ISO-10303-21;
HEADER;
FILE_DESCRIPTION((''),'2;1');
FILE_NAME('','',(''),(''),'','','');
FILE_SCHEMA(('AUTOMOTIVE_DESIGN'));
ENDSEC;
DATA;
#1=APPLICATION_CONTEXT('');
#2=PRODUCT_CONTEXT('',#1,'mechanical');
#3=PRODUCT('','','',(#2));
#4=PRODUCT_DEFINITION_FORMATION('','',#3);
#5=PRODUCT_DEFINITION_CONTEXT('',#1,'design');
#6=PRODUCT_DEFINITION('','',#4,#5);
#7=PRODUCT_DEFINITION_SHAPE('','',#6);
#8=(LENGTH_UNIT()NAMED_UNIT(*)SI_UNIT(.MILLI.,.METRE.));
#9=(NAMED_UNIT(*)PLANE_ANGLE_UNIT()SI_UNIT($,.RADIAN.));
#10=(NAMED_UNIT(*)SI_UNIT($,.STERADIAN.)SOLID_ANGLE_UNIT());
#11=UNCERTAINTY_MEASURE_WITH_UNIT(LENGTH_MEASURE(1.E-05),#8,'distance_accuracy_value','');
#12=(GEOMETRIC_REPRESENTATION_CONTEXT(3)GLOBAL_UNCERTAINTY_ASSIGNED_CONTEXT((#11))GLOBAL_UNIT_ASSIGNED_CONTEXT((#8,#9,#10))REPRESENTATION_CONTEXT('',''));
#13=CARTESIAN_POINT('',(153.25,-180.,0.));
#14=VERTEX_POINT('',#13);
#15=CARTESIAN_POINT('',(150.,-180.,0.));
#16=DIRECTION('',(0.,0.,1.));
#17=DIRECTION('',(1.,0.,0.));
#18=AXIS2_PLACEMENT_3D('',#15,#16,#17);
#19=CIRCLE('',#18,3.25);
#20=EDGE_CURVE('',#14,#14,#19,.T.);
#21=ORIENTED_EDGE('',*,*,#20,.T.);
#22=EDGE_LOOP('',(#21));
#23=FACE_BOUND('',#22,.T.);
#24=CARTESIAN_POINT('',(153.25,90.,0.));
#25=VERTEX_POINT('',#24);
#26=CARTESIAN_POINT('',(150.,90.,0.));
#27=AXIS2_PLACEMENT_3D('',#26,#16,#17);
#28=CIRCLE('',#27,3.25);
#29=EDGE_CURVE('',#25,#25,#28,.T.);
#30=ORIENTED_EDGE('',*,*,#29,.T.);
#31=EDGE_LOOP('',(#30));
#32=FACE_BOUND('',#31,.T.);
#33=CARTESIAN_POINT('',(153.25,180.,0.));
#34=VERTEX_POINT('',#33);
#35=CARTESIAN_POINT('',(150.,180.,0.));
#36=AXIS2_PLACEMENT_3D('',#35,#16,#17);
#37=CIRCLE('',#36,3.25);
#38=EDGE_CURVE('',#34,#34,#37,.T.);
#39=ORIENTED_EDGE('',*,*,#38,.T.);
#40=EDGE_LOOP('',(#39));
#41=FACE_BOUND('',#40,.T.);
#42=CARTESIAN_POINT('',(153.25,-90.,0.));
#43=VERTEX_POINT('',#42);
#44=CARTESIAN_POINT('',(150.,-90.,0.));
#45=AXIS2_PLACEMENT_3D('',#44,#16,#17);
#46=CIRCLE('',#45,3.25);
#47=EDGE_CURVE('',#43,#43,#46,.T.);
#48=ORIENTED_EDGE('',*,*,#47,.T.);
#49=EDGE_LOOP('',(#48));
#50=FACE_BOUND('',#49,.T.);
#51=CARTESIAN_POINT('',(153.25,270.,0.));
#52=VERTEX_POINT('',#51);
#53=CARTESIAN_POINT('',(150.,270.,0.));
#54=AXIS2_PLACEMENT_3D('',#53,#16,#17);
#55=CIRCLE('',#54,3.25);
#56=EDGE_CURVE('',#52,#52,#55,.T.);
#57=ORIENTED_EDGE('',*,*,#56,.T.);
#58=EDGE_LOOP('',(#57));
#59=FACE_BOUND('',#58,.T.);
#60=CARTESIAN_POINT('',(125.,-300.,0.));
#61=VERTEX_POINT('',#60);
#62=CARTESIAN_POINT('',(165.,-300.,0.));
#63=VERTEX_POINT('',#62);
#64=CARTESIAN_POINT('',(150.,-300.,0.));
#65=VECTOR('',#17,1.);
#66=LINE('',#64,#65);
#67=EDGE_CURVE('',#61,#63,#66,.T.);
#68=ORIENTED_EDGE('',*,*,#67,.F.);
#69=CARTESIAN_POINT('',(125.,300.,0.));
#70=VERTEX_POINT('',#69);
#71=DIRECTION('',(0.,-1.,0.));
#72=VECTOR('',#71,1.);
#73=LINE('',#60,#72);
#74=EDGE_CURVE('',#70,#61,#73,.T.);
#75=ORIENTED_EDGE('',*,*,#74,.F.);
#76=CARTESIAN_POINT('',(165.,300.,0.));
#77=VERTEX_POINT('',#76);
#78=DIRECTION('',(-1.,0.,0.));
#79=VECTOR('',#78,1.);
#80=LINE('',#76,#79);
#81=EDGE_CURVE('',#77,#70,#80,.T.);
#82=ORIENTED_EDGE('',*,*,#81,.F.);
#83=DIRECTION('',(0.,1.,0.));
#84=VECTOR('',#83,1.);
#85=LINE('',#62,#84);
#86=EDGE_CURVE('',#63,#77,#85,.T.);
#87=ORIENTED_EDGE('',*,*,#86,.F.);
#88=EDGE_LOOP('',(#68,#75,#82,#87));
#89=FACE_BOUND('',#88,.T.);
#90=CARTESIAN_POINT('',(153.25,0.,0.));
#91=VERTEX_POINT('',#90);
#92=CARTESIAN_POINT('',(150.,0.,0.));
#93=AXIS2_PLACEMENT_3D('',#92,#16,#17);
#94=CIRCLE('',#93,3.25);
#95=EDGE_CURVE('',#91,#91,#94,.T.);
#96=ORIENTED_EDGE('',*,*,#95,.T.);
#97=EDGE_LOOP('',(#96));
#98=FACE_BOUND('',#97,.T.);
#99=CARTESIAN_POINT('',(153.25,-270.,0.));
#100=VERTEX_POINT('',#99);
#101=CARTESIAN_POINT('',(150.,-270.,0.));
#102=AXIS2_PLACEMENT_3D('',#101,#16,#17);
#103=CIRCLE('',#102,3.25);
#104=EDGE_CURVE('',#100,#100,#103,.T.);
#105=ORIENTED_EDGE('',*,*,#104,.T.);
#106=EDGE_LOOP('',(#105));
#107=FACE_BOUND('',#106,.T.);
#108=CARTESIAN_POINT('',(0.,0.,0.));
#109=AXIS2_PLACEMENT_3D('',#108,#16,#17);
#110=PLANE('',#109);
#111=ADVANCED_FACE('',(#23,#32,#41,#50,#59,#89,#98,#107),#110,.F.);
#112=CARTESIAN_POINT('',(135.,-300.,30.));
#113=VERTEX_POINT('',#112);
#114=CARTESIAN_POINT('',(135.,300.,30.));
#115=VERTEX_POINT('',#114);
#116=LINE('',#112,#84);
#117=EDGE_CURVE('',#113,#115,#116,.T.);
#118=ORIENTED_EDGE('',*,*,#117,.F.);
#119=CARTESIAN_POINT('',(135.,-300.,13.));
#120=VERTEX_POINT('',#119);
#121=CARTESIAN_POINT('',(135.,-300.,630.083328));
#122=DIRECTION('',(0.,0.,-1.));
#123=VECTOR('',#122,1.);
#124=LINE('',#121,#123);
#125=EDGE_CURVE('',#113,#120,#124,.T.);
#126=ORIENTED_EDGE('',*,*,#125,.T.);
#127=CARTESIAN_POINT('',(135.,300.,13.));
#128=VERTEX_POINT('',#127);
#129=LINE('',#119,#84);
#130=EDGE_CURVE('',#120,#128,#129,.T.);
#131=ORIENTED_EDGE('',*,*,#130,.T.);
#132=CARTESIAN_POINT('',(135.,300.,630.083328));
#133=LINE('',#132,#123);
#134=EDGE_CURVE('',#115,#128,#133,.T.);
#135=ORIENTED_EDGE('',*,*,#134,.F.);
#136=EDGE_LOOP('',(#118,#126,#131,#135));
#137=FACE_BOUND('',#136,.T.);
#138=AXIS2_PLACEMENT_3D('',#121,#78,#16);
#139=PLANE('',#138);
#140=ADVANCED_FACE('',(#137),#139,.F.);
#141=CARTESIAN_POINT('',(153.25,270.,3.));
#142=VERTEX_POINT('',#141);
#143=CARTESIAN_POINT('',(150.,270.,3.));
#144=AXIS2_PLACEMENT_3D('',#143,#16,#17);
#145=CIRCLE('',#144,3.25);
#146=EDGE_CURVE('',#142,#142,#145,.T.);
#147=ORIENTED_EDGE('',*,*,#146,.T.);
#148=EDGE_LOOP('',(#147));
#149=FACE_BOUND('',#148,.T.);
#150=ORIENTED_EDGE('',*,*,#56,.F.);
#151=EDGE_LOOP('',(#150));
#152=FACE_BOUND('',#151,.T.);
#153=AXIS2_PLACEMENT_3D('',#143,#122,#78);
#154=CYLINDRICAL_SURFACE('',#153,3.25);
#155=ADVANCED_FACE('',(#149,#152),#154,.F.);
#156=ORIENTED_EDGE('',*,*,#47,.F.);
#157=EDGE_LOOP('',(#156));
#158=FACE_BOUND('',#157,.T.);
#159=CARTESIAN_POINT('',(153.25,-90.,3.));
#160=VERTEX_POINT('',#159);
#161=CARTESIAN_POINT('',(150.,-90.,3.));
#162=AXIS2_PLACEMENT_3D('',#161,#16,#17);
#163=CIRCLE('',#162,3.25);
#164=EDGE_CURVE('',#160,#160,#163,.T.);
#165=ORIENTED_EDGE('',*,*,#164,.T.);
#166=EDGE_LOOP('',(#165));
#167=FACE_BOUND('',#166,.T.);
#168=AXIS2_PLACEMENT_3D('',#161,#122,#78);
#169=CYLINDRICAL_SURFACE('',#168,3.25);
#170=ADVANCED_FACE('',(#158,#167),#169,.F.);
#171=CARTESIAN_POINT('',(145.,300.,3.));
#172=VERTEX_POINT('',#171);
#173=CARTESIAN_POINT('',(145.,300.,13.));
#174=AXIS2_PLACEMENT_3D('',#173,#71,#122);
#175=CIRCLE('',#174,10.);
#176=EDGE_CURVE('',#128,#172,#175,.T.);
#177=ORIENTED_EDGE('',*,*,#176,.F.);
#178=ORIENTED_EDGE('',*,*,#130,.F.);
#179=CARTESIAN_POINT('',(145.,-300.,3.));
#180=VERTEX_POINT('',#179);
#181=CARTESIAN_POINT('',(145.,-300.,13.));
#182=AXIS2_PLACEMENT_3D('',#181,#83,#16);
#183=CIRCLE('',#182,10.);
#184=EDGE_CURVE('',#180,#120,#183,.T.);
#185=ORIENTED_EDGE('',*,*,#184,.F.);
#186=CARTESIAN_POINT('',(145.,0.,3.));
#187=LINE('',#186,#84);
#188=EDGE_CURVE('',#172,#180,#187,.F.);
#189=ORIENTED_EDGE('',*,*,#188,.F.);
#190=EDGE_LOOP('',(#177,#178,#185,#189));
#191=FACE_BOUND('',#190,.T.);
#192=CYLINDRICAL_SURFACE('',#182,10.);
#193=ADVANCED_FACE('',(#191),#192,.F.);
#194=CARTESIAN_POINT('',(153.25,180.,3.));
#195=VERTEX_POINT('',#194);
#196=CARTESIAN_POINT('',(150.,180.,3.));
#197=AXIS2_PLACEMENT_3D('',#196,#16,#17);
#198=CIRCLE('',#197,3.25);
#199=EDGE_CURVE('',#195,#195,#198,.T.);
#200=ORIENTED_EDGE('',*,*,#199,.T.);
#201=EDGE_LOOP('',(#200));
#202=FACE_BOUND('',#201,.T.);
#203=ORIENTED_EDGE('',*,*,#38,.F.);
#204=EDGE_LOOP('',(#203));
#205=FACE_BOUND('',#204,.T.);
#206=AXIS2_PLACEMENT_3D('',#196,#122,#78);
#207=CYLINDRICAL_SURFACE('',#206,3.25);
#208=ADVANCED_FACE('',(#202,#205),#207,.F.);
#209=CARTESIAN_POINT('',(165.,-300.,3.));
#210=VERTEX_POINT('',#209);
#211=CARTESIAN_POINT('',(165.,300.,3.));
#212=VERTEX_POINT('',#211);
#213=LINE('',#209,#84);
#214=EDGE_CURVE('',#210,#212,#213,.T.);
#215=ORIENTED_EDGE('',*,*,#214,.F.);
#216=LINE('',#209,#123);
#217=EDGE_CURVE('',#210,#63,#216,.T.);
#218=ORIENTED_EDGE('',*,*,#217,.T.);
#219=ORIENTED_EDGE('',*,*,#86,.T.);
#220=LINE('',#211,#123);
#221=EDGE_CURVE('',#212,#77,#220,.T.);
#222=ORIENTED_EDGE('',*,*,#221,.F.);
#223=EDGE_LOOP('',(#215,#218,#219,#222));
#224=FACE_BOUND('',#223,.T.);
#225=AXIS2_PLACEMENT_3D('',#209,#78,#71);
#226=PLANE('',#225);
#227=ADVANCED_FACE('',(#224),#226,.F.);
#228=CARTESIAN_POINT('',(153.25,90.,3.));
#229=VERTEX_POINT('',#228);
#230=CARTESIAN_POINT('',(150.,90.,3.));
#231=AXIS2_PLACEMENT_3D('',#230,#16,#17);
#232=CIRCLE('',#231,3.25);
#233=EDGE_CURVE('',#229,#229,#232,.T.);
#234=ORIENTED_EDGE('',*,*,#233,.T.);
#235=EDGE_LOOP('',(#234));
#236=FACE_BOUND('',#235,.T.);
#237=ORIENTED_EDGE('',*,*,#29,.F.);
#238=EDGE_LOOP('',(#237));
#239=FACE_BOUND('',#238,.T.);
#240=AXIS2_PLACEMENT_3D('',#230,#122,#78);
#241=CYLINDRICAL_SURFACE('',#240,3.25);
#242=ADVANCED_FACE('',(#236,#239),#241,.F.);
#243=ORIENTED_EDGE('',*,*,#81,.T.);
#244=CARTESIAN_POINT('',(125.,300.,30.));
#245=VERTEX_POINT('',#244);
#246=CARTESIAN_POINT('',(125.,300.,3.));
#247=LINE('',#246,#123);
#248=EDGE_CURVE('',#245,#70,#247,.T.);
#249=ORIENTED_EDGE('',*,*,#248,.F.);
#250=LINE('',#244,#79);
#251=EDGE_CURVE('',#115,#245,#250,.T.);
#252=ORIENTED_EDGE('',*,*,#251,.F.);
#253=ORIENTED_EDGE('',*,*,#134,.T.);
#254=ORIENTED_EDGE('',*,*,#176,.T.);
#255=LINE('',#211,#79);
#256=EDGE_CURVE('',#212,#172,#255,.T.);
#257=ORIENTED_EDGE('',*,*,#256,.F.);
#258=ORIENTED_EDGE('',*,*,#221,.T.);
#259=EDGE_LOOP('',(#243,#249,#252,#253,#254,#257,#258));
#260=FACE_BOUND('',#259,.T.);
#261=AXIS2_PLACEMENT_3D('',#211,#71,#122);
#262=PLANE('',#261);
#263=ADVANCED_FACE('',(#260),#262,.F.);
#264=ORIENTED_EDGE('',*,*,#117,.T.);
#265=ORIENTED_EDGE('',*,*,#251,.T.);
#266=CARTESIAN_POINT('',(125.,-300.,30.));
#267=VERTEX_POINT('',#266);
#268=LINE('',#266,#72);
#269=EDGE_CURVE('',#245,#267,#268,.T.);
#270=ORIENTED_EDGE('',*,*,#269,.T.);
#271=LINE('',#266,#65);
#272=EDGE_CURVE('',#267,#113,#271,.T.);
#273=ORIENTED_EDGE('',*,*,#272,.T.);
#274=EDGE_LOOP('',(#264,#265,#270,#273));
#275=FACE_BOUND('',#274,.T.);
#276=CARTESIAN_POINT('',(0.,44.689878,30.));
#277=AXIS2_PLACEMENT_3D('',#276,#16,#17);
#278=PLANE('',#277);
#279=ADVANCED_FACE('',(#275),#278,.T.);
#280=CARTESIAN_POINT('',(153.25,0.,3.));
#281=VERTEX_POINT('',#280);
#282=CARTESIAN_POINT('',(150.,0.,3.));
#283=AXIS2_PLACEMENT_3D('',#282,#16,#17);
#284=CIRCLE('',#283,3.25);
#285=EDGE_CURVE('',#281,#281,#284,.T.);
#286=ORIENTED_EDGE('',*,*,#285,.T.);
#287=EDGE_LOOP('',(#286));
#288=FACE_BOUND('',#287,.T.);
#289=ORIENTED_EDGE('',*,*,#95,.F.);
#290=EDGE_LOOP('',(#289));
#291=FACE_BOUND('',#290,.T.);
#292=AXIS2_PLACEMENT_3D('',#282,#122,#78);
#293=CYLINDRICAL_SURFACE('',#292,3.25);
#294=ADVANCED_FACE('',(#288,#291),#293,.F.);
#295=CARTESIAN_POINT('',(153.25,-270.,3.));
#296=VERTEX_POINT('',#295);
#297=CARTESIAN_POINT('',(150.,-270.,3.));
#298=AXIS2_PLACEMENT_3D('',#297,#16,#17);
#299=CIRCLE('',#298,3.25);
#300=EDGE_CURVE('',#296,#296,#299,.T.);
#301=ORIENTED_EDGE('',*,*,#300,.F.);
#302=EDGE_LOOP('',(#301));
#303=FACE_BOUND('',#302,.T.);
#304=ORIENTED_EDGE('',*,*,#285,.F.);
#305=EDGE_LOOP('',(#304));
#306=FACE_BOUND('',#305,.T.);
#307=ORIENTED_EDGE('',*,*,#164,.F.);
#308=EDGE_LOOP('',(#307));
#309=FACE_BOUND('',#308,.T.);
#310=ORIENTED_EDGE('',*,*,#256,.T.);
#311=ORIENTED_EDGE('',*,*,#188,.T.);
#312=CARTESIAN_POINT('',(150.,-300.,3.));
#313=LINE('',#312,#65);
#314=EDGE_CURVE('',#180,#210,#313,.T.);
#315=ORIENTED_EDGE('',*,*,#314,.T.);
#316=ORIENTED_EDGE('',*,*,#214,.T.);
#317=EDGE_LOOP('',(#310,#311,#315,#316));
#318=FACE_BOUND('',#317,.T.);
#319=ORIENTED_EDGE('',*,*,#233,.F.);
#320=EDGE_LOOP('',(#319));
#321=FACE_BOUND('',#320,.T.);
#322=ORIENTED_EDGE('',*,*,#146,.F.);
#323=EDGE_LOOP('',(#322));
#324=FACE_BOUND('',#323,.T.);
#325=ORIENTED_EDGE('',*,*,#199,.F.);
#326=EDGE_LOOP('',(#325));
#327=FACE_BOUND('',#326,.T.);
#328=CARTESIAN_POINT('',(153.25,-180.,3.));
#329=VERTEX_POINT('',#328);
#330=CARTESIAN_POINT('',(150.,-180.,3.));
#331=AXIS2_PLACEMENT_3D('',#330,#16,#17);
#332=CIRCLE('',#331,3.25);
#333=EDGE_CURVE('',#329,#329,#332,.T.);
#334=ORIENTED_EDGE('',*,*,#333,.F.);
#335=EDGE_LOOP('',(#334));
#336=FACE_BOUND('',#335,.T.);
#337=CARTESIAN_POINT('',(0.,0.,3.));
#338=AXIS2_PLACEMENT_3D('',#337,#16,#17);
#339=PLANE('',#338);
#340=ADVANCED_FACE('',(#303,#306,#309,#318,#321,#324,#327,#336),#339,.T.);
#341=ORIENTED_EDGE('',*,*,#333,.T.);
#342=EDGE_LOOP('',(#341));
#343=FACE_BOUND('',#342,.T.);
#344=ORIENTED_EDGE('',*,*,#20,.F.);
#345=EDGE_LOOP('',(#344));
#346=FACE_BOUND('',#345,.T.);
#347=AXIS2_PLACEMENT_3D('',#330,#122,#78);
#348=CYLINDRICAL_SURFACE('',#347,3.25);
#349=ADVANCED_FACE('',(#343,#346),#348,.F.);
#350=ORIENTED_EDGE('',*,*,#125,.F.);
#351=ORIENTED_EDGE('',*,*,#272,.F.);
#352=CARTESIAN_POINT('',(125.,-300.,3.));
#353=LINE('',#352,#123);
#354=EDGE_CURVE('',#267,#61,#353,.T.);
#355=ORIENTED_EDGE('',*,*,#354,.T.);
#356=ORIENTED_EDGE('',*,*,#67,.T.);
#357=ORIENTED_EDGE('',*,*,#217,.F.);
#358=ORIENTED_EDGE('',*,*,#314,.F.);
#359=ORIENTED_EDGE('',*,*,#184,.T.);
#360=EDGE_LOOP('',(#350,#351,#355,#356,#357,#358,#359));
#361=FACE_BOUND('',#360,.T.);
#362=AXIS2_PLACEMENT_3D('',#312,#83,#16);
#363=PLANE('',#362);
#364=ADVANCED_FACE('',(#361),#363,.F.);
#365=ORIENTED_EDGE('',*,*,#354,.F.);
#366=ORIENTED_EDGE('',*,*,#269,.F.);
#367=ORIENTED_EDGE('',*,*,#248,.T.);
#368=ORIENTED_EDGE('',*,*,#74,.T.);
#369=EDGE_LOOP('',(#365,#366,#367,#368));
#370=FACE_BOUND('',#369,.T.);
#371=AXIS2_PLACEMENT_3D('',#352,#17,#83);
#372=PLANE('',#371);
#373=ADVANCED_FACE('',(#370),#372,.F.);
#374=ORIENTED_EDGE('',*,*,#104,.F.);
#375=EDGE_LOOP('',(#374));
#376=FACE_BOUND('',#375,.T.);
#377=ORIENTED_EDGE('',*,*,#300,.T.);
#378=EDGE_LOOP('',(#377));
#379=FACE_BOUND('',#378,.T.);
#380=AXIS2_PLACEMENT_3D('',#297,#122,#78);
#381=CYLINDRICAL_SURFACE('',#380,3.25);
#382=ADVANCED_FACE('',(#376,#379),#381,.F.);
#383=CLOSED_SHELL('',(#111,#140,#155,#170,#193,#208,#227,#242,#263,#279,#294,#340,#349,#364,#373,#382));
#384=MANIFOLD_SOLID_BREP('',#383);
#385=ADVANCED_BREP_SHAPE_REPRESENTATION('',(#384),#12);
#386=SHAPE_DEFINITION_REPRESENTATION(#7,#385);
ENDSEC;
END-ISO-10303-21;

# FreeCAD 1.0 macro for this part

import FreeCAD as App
import Part
import Sketcher
Q = App.Units.Quantity


def edges_at(feature, points):
    """Names of the edges that pass closest to the given points."""
    edges = feature.Shape.Edges
    near = lambda p: min(range(len(edges)), key=lambda i: edges[i].distToShape(Part.Vertex(*p))[0])
    return sorted({f"Edge{near(p) + 1}" for p in points})


def add_polygon(sketch, points):
    """Adds a closed chain of lines whose ends are joined by coincident constraints."""
    first, n = sketch.GeometryCount, len(points)
    for a, b in zip(points, points[1:] + points[:1]):
        sketch.addGeometry(Part.LineSegment(App.Vector(*a, 0), App.Vector(*b, 0)), False)
    for i in range(n):
        sketch.addConstraint(Sketcher.Constraint("Coincident", first + i, 2, first + (i + 1) % n, 1))

doc = App.newDocument("Part")
body = doc.addObject("PartDesign::Body", "Body")

# Sketch on XY plane
sketch1 = body.newObject("Sketcher::SketchObject", "Sketch")
sketch1.AttachmentSupport = (doc.getObject("XY_Plane"), [""])
sketch1.MapMode = "FlatFace"
add_polygon(sketch1, [(125, 300), (125, -300), (165, -300), (165, 300)])  # lines 0-3
sketch1.addGeometry(Part.Circle(App.Vector(150, -270, 0), App.Vector(0, 0, 1), 3.2), False)  # 4
sketch1.addGeometry(Part.Circle(App.Vector(150, -180, 0), App.Vector(0, 0, 1), 3.2), False)  # 5
sketch1.addGeometry(Part.Circle(App.Vector(150, -90, 0), App.Vector(0, 0, 1), 3.2), False)  # 6
sketch1.addGeometry(Part.Circle(App.Vector(150, 0, 0), App.Vector(0, 0, 1), 3.2), False)  # 7
sketch1.addGeometry(Part.Circle(App.Vector(150, 90, 0), App.Vector(0, 0, 1), 3.2), False)  # 8
sketch1.addGeometry(Part.Circle(App.Vector(150, 180, 0), App.Vector(0, 0, 1), 3.2), False)  # 9
sketch1.addGeometry(Part.Circle(App.Vector(150, 270, 0), App.Vector(0, 0, 1), 3.2), False)  # 10
sketch1.addConstraint([
    Sketcher.Constraint("Vertical", 0),
    Sketcher.Constraint("Horizontal", 1),
    Sketcher.Constraint("Vertical", 2),
    Sketcher.Constraint("Horizontal", 3),
    Sketcher.Constraint("Equal", 4, 5),
    Sketcher.Constraint("Equal", 5, 6),
    Sketcher.Constraint("Equal", 6, 7),
    Sketcher.Constraint("Equal", 7, 8),
    Sketcher.Constraint("Equal", 8, 9),
    Sketcher.Constraint("Equal", 9, 10),
    Sketcher.Constraint("Symmetric", 6, 3, 8, 3, -1),
    Sketcher.Constraint("Symmetric", 5, 3, 9, 3, -1),
    Sketcher.Constraint("Symmetric", 4, 3, 10, 3, -1),
    Sketcher.Constraint("PointOnObject", 7, 3, -1),
    Sketcher.Constraint("Vertical", 4, 3, 5, 3),
    Sketcher.Constraint("Vertical", 5, 3, 6, 3),
    Sketcher.Constraint("Vertical", 6, 3, 7, 3),
    Sketcher.Constraint("Diameter", 4, Q("6.5 mm")),
    Sketcher.Constraint("DistanceX", 1, 1, 1, 2, Q("40 mm")),
    Sketcher.Constraint("DistanceY", 0, 2, 0, 1, Q("600 mm")),
    Sketcher.Constraint("DistanceX", -1, 1, 4, 3, Q("150 mm")),
    Sketcher.Constraint("DistanceY", 4, 3, -1, 1, Q("270 mm")),
    Sketcher.Constraint("DistanceY", 5, 3, -1, 1, Q("180 mm")),
    Sketcher.Constraint("DistanceY", 6, 3, -1, 1, Q("90 mm")),
    Sketcher.Constraint("DistanceX", -1, 1, 0, 2, Q("125 mm")),
    Sketcher.Constraint("DistanceY", 0, 2, -1, 1, Q("300 mm")),
])
pad1 = body.newObject("PartDesign::Pad", "Pad")
pad1.Profile = sketch1
pad1.Length = 3

# Sketch on XY plane
sketch2 = body.newObject("Sketcher::SketchObject", "Sketch001")
sketch2.AttachmentSupport = (doc.getObject("XY_Plane"), [""])
sketch2.MapMode = "FlatFace"
sketch2.AttachmentOffset = App.Placement(App.Vector(0, 0, 3), App.Rotation())
add_polygon(sketch2, [(125, 300), (125, -300), (135, -300), (135, 300)])  # lines 0-3
sketch2.addConstraint([
    Sketcher.Constraint("Vertical", 0),
    Sketcher.Constraint("Horizontal", 1),
    Sketcher.Constraint("Vertical", 2),
    Sketcher.Constraint("Horizontal", 3),
    Sketcher.Constraint("DistanceX", 1, 1, 1, 2, Q("10 mm")),
    Sketcher.Constraint("DistanceY", 0, 2, 0, 1, Q("600 mm")),
    Sketcher.Constraint("DistanceX", -1, 1, 0, 2, Q("125 mm")),
    Sketcher.Constraint("DistanceY", 0, 2, -1, 1, Q("300 mm")),
])
pad2 = body.newObject("PartDesign::Pad", "Pad001")
pad2.Profile = sketch2
pad2.Length = 27
doc.recompute()

fillet = body.newObject("PartDesign::Fillet", "Fillet")
fillet.Base = (pad2, edges_at(pad2, [(135, 0, 3)]))
fillet.Radius = 10

doc.recompute()
